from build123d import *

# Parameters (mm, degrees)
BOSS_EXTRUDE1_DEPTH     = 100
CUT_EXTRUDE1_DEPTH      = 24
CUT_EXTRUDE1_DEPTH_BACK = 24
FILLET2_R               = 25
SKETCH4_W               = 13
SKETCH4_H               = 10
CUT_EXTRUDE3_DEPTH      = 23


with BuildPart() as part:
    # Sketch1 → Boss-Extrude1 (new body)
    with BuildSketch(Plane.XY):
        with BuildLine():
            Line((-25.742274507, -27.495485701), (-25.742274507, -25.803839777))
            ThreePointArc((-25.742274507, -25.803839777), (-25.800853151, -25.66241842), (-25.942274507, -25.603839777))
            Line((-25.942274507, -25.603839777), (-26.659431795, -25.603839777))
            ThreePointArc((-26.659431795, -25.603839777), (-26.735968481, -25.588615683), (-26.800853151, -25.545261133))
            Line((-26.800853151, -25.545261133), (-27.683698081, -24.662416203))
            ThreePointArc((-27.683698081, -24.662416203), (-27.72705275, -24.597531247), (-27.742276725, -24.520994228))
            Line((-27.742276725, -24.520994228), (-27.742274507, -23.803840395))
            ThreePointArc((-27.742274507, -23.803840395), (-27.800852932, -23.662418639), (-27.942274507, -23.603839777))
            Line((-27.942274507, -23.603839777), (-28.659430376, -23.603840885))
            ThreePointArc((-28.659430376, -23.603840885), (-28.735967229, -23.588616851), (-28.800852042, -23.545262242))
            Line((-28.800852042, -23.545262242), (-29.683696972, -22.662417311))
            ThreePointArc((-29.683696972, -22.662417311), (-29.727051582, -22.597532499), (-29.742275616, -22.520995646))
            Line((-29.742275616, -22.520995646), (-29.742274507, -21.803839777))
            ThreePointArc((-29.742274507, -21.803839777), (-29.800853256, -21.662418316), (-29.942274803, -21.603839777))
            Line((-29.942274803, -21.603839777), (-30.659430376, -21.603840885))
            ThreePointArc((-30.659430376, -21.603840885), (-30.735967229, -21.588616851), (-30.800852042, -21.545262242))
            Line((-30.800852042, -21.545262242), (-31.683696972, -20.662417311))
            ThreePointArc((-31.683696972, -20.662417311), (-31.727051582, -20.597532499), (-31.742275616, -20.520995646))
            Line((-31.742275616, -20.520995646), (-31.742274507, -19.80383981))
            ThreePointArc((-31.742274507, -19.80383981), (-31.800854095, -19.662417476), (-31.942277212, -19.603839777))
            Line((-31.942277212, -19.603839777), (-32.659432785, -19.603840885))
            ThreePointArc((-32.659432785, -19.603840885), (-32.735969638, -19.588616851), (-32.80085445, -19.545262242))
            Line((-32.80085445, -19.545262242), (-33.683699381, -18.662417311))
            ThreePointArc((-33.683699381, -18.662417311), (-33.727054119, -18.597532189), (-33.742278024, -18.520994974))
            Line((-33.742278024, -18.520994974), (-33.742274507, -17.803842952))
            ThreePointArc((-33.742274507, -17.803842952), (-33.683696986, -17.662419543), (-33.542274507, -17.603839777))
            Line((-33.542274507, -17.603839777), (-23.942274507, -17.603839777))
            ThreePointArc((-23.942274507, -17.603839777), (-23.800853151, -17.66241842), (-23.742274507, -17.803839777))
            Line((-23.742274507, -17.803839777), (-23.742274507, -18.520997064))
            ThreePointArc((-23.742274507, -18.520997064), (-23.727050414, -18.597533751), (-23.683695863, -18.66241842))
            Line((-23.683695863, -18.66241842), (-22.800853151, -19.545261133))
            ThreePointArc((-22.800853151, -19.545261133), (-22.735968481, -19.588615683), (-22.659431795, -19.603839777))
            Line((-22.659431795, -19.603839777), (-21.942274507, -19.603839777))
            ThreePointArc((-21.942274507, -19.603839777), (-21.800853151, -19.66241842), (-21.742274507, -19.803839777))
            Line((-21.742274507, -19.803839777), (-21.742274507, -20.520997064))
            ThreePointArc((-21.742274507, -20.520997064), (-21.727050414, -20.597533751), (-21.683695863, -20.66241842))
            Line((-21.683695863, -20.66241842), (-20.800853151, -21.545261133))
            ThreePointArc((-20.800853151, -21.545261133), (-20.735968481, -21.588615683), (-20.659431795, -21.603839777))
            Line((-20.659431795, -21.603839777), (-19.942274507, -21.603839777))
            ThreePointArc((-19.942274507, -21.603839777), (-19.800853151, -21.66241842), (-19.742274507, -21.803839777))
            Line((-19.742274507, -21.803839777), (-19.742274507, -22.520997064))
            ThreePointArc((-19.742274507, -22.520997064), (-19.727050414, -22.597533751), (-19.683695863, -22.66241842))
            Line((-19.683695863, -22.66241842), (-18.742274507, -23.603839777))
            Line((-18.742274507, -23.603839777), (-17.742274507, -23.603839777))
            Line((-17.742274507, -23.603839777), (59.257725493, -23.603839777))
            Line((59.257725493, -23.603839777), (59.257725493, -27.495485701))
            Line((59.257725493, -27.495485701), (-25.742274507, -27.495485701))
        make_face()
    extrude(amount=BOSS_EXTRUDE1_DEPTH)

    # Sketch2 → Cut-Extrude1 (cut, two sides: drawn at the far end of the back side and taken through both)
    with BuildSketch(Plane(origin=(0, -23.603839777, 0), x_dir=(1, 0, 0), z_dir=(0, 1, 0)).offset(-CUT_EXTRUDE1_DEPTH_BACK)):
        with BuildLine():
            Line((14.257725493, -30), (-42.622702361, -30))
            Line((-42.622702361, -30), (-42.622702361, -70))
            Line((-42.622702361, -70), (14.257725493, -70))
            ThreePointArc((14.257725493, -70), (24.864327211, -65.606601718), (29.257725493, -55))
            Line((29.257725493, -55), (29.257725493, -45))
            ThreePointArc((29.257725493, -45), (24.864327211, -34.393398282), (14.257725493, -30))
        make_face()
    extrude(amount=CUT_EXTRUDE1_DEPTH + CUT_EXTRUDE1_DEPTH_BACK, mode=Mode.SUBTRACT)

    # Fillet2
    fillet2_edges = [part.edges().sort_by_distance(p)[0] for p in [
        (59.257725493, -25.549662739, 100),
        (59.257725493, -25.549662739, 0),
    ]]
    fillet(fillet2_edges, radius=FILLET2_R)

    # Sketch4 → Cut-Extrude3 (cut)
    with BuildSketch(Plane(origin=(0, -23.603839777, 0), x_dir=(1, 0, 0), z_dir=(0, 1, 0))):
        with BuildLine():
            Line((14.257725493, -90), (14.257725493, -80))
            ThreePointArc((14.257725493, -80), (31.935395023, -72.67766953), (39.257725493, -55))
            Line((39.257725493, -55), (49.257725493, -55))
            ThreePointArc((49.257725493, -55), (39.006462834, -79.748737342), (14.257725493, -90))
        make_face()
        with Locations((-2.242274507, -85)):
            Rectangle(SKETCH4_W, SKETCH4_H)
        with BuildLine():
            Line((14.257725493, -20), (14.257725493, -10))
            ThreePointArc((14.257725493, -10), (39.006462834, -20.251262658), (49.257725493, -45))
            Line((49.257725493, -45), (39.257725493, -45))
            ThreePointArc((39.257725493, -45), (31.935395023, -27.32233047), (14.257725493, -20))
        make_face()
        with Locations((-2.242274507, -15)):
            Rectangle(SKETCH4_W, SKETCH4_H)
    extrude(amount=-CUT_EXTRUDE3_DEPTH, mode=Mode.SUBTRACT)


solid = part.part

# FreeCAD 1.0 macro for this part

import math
import FreeCAD as App
import Part
import Sketcher

V = App.Vector
Q = App.Units.Quantity


def edges_at(feature, points):
    """Names of the edges that pass closest to the given points."""
    edges = feature.Shape.Edges
    near = lambda p: min(range(len(edges)), key=lambda i: edges[i].distToShape(Part.Vertex(*p))[0])
    return sorted({f"Edge{near(p) + 1}" for p in points})

doc = App.newDocument("Part")
body = doc.addObject("PartDesign::Body", "Body")

# Sketch on XY plane
sketch1 = body.newObject("Sketcher::SketchObject", "Sketch")
sketch1.AttachmentSupport = (doc.getObject("XY_Plane"), [""])
sketch1.MapMode = "FlatFace"
sketch1.addGeometry([
    Part.LineSegment(V(-25.74, -25.8, 0), V(-25.74, -27.5, 0)),  # 0
    Part.LineSegment(V(-25.74, -27.5, 0), V(59.26, -27.5, 0)),  # 1
    Part.LineSegment(V(59.26, -27.5, 0), V(59.26, -23.6, 0)),  # 2
    Part.LineSegment(V(59.26, -23.6, 0), V(-18.74, -23.6, 0)),  # 3
    Part.LineSegment(V(-18.74, -23.6, 0), V(-19.68, -22.66, 0)),  # 4
    Part.ArcOfCircle(Part.Circle(V(-19.54, -22.52, 0), V(0, 0, 1), 0.2), math.radians(180), math.radians(225)),  # 5
    Part.LineSegment(V(-19.74, -22.52, 0), V(-19.74, -21.8, 0)),  # 6
    Part.ArcOfCircle(Part.Circle(V(-19.94, -21.8, 0), V(0, 0, 1), 0.2), math.radians(0), math.radians(90)),  # 7
    Part.LineSegment(V(-19.94, -21.6, 0), V(-20.66, -21.6, 0)),  # 8
    Part.ArcOfCircle(Part.Circle(V(-20.66, -21.4, 0), V(0, 0, 1), 0.2), math.radians(-135), math.radians(-90)),  # 9
    Part.LineSegment(V(-20.8, -21.55, 0), V(-21.68, -20.66, 0)),  # 10
    Part.ArcOfCircle(Part.Circle(V(-21.54, -20.52, 0), V(0, 0, 1), 0.2), math.radians(180), math.radians(225)),  # 11
    Part.LineSegment(V(-21.74, -20.52, 0), V(-21.74, -19.8, 0)),  # 12
    Part.ArcOfCircle(Part.Circle(V(-21.94, -19.8, 0), V(0, 0, 1), 0.2), math.radians(0), math.radians(90)),  # 13
    Part.LineSegment(V(-21.94, -19.6, 0), V(-22.66, -19.6, 0)),  # 14
    Part.ArcOfCircle(Part.Circle(V(-22.66, -19.4, 0), V(0, 0, 1), 0.2), math.radians(-135), math.radians(-90)),  # 15
    Part.LineSegment(V(-22.8, -19.55, 0), V(-23.68, -18.66, 0)),  # 16
    Part.ArcOfCircle(Part.Circle(V(-23.54, -18.52, 0), V(0, 0, 1), 0.2), math.radians(180), math.radians(225)),  # 17
    Part.LineSegment(V(-23.74, -18.52, 0), V(-23.74, -17.8, 0)),  # 18
    Part.ArcOfCircle(Part.Circle(V(-23.94, -17.8, 0), V(0, 0, 1), 0.2), math.radians(0), math.radians(90)),  # 19
    Part.LineSegment(V(-23.94, -17.6, 0), V(-33.54, -17.6, 0)),  # 20
    Part.ArcOfCircle(Part.Circle(V(-33.54, -17.8, 0), V(0, 0, 1), 0.2), math.radians(90), math.radians(180)),  # 21
    Part.LineSegment(V(-33.74, -17.8, 0), V(-33.74, -18.52, 0)),  # 22
    Part.ArcOfCircle(Part.Circle(V(-33.54, -18.52, 0), V(0, 0, 1), 0.2), math.radians(180), math.radians(225)),  # 23
    Part.LineSegment(V(-33.68, -18.66, 0), V(-32.8, -19.55, 0)),  # 24
    Part.ArcOfCircle(Part.Circle(V(-32.66, -19.4, 0), V(0, 0, 1), 0.2), math.radians(-135), math.radians(-90)),  # 25
    Part.LineSegment(V(-32.66, -19.6, 0), V(-31.94, -19.6, 0)),  # 26
    Part.ArcOfCircle(Part.Circle(V(-31.94, -19.8, 0), V(0, 0, 1), 0.2), math.radians(0), math.radians(90)),  # 27
    Part.LineSegment(V(-31.74, -19.8, 0), V(-31.74, -20.52, 0)),  # 28
    Part.ArcOfCircle(Part.Circle(V(-31.54, -20.52, 0), V(0, 0, 1), 0.2), math.radians(180), math.radians(225)),  # 29
    Part.LineSegment(V(-31.68, -20.66, 0), V(-30.8, -21.55, 0)),  # 30
    Part.ArcOfCircle(Part.Circle(V(-30.66, -21.4, 0), V(0, 0, 1), 0.2), math.radians(-135), math.radians(-90)),  # 31
    Part.LineSegment(V(-30.66, -21.6, 0), V(-29.94, -21.6, 0)),  # 32
    Part.ArcOfCircle(Part.Circle(V(-29.94, -21.8, 0), V(0, 0, 1), 0.2), math.radians(0), math.radians(90)),  # 33
    Part.LineSegment(V(-29.74, -21.8, 0), V(-29.74, -22.52, 0)),  # 34
    Part.ArcOfCircle(Part.Circle(V(-29.54, -22.52, 0), V(0, 0, 1), 0.2), math.radians(180), math.radians(225)),  # 35
    Part.LineSegment(V(-29.68, -22.66, 0), V(-28.8, -23.55, 0)),  # 36
    Part.ArcOfCircle(Part.Circle(V(-28.66, -23.4, 0), V(0, 0, 1), 0.2), math.radians(-135), math.radians(-90)),  # 37
    Part.LineSegment(V(-28.66, -23.6, 0), V(-27.94, -23.6, 0)),  # 38
    Part.ArcOfCircle(Part.Circle(V(-27.94, -23.8, 0), V(0, 0, 1), 0.2), math.radians(0), math.radians(90)),  # 39
    Part.LineSegment(V(-27.74, -23.8, 0), V(-27.74, -24.52, 0)),  # 40
    Part.ArcOfCircle(Part.Circle(V(-27.54, -24.52, 0), V(0, 0, 1), 0.2), math.radians(180), math.radians(225)),  # 41
    Part.LineSegment(V(-27.68, -24.66, 0), V(-26.8, -25.55, 0)),  # 42
    Part.ArcOfCircle(Part.Circle(V(-26.66, -25.4, 0), V(0, 0, 1), 0.2), math.radians(-135), math.radians(-90)),  # 43
    Part.LineSegment(V(-26.66, -25.6, 0), V(-25.94, -25.6, 0)),  # 44
    Part.ArcOfCircle(Part.Circle(V(-25.94, -25.8, 0), V(0, 0, 1), 0.2), math.radians(0), math.radians(90)),  # 45
], False)
sketch1.addConstraint([
    Sketcher.Constraint("Coincident", 0, 2, 1, 1),
    Sketcher.Constraint("Coincident", 1, 2, 2, 1),
    Sketcher.Constraint("Coincident", 2, 2, 3, 1),
    Sketcher.Constraint("Coincident", 3, 2, 4, 1),
    Sketcher.Constraint("Tangent", 4, 2, 5, 2),
    Sketcher.Constraint("Tangent", 5, 1, 6, 1),
    Sketcher.Constraint("Tangent", 6, 2, 7, 1),
    Sketcher.Constraint("Tangent", 7, 2, 8, 1),
    Sketcher.Constraint("Tangent", 8, 2, 9, 2),
    Sketcher.Constraint("Tangent", 9, 1, 10, 1),
    Sketcher.Constraint("Tangent", 10, 2, 11, 2),
    Sketcher.Constraint("Tangent", 11, 1, 12, 1),
    Sketcher.Constraint("Tangent", 12, 2, 13, 1),
    Sketcher.Constraint("Tangent", 13, 2, 14, 1),
    Sketcher.Constraint("Tangent", 14, 2, 15, 2),
    Sketcher.Constraint("Tangent", 15, 1, 16, 1),
    Sketcher.Constraint("Tangent", 16, 2, 17, 2),
    Sketcher.Constraint("Tangent", 17, 1, 18, 1),
    Sketcher.Constraint("Tangent", 18, 2, 19, 1),
    Sketcher.Constraint("Tangent", 19, 2, 20, 1),
    Sketcher.Constraint("Tangent", 20, 2, 21, 1),
    Sketcher.Constraint("Coincident", 21, 2, 22, 1),
    Sketcher.Constraint("Tangent", 22, 2, 23, 1),
    Sketcher.Constraint("Tangent", 23, 2, 24, 1),
    Sketcher.Constraint("Tangent", 24, 2, 25, 1),
    Sketcher.Constraint("Tangent", 25, 2, 26, 1),
    Sketcher.Constraint("Coincident", 26, 2, 27, 2),
    Sketcher.Constraint("Tangent", 27, 1, 28, 1),
    Sketcher.Constraint("Tangent", 28, 2, 29, 1),
    Sketcher.Constraint("Tangent", 29, 2, 30, 1),
    Sketcher.Constraint("Tangent", 30, 2, 31, 1),
    Sketcher.Constraint("Tangent", 31, 2, 32, 1),
    Sketcher.Constraint("Tangent", 32, 2, 33, 2),
    Sketcher.Constraint("Tangent", 33, 1, 34, 1),
    Sketcher.Constraint("Tangent", 34, 2, 35, 1),
    Sketcher.Constraint("Tangent", 35, 2, 36, 1),
    Sketcher.Constraint("Tangent", 36, 2, 37, 1),
    Sketcher.Constraint("Tangent", 37, 2, 38, 1),
    Sketcher.Constraint("Tangent", 38, 2, 39, 2),
    Sketcher.Constraint("Tangent", 39, 1, 40, 1),
    Sketcher.Constraint("Tangent", 40, 2, 41, 1),
    Sketcher.Constraint("Tangent", 41, 2, 42, 1),
    Sketcher.Constraint("Tangent", 42, 2, 43, 1),
    Sketcher.Constraint("Tangent", 43, 2, 44, 1),
    Sketcher.Constraint("Tangent", 44, 2, 45, 2),
    Sketcher.Constraint("Tangent", 45, 1, 0, 1),
    Sketcher.Constraint("Vertical", 0),
    Sketcher.Constraint("Horizontal", 1),
    Sketcher.Constraint("Vertical", 2),
    Sketcher.Constraint("Horizontal", 3),
    Sketcher.Constraint("Vertical", 6),
    Sketcher.Constraint("Horizontal", 8),
    Sketcher.Constraint("Vertical", 12),
    Sketcher.Constraint("Horizontal", 14),
    Sketcher.Constraint("Vertical", 18),
    Sketcher.Constraint("Horizontal", 20),
    Sketcher.Constraint("Horizontal", 26),
    Sketcher.Constraint("Vertical", 28),
    Sketcher.Constraint("Horizontal", 32),
    Sketcher.Constraint("Vertical", 34),
    Sketcher.Constraint("Horizontal", 38),
    Sketcher.Constraint("Horizontal", 44),
    Sketcher.Constraint("Equal", 5, 7),
    Sketcher.Constraint("Equal", 7, 9),
    Sketcher.Constraint("Equal", 9, 11),
    Sketcher.Constraint("Equal", 11, 13),
    Sketcher.Constraint("Equal", 13, 15),
    Sketcher.Constraint("Equal", 15, 17),
    Sketcher.Constraint("Equal", 17, 19),
    Sketcher.Constraint("Equal", 19, 21),
    Sketcher.Constraint("Equal", 21, 23),
    Sketcher.Constraint("Equal", 23, 25),
    Sketcher.Constraint("Equal", 25, 27),
    Sketcher.Constraint("Equal", 27, 29),
    Sketcher.Constraint("Equal", 29, 31),
    Sketcher.Constraint("Equal", 31, 33),
    Sketcher.Constraint("Equal", 33, 35),
    Sketcher.Constraint("Equal", 35, 37),
    Sketcher.Constraint("Equal", 37, 39),
    Sketcher.Constraint("Equal", 39, 41),
    Sketcher.Constraint("Equal", 41, 43),
    Sketcher.Constraint("Equal", 43, 45),
    Sketcher.Constraint("Parallel", 4, 10),
    Sketcher.Constraint("Parallel", 10, 16),
    Sketcher.Constraint("Parallel", 16, 24),
    Sketcher.Constraint("Parallel", 24, 30),
    Sketcher.Constraint("Parallel", 30, 36),
    Sketcher.Constraint("Parallel", 22, 40),
    Sketcher.Constraint("Parallel", 36, 42),
    Sketcher.Constraint("Horizontal", 17, 3, 23, 3),
    Sketcher.Constraint("Horizontal", 15, 3, 25, 3),
    Sketcher.Constraint("Horizontal", 11, 3, 29, 3),
    Sketcher.Constraint("Horizontal", 9, 3, 31, 3),
    Sketcher.Constraint("Horizontal", 5, 3, 35, 3),
    Sketcher.Constraint("Horizontal", 23, 3, 22, 2),
    Sketcher.Constraint("Horizontal", 3, 2, 37, 2),
    Sketcher.Constraint("Equal", 8, 14),
    Sketcher.Constraint("Equal", 14, 26),
    Sketcher.Constraint("Equal", 26, 32),
    Sketcher.Constraint("Equal", 32, 38),
    Sketcher.Constraint("Equal", 38, 44),
    Sketcher.Constraint("Equal", 44, 6),
    Sketcher.Constraint("Equal", 6, 12),
    Sketcher.Constraint("Equal", 12, 18),
    Sketcher.Constraint("Equal", 10, 16),
    Sketcher.Constraint("Equal", 30, 36),
    Sketcher.Constraint("Equal", 22, 40),
    Sketcher.Constraint("Equal", 36, 42),
    Sketcher.Constraint("Radius", 5, 0.2),
    Sketcher.Constraint("DistanceX", 1, 1, 1, 2, 85.0),
    Sketcher.Constraint("DistanceX", 3, 2, 3, 1, 78.0),
    Sketcher.Constraint("Angle", 4, Q("135 deg")),
    Sketcher.Constraint("DistanceX", 20, 2, 20, 1, 9.6),
    Sketcher.Constraint("DistanceX", 23, 2, -1, 1, 33.683699),
    Sketcher.Constraint("DistanceX", 41, 2, -1, 1, 27.683698),
    Sketcher.Constraint("Distance", 4, 1.331371),
    Sketcher.Constraint("DistanceY", 0, 2, 0, 1, 1.691646),
    Sketcher.Constraint("DistanceY", 2, 1, 2, 2, 3.891646),
    Sketcher.Constraint("DistanceY", 7, 3, -1, 1, 21.80384),
])
pad1 = body.newObject("PartDesign::Pad", "Pad")
pad1.Profile = sketch1
pad1.Length = 100

# Sketch on XZ plane
sketch2 = body.newObject("Sketcher::SketchObject", "Sketch001")
sketch2.AttachmentSupport = (doc.getObject("XZ_Plane"), [""])
sketch2.MapMode = "FlatFace"
sketch2.AttachmentOffset = App.Placement(V(0, 0, 23.60384), App.Rotation())
sketch2.addGeometry([
    Part.LineSegment(V(14, 30, 0), V(-43, 30, 0)),  # 0
    Part.LineSegment(V(-43, 30, 0), V(-43, 70, 0)),  # 1
    Part.LineSegment(V(-43, 70, 0), V(14, 70, 0)),  # 2
    Part.ArcOfCircle(Part.Circle(V(14, 55, 0), V(0, 0, 1), 15), math.radians(0), math.radians(90)),  # 3
    Part.LineSegment(V(29, 55, 0), V(29, 45, 0)),  # 4
    Part.ArcOfCircle(Part.Circle(V(14, 45, 0), V(0, 0, 1), 15), math.radians(-90), math.radians(0)),  # 5
], False)
sketch2.addConstraint([
    Sketcher.Constraint("Coincident", 0, 2, 1, 1),
    Sketcher.Constraint("Coincident", 1, 2, 2, 1),
    Sketcher.Constraint("Tangent", 2, 2, 3, 2),
    Sketcher.Constraint("Tangent", 3, 1, 4, 1),
    Sketcher.Constraint("Tangent", 4, 2, 5, 2),
    Sketcher.Constraint("Tangent", 5, 1, 0, 1),
    Sketcher.Constraint("Horizontal", 0),
    Sketcher.Constraint("Vertical", 1),
    Sketcher.Constraint("Horizontal", 2),
    Sketcher.Constraint("Vertical", 4),
    Sketcher.Constraint("Equal", 3, 5),
    Sketcher.Constraint("Radius", 3, 15.0),
    Sketcher.Constraint("DistanceY", 1, 1, 1, 2, 40.0),
    Sketcher.Constraint("DistanceY", -1, 1, 3, 3, 55.0),
    Sketcher.Constraint("DistanceX", 0, 2, 0, 1, 56.880428),
    Sketcher.Constraint("DistanceX", -1, 1, 3, 3, 14.257725),
])
pocket1 = body.newObject("PartDesign::Pocket", "Pocket")
pocket1.Profile = sketch2
pocket1.Type = "ThroughAll"
pocket1.Midplane = True
doc.recompute()

fillet = body.newObject("PartDesign::Fillet", "Fillet")
fillet.Base = (pocket1, edges_at(pocket1, [(59.258, -25.55, 100), (59.258, -25.55, 0)]))
fillet.Radius = 25

# Sketch on XZ plane
sketch3 = body.newObject("Sketcher::SketchObject", "Sketch002")
sketch3.AttachmentSupport = (doc.getObject("XZ_Plane"), [""])
sketch3.MapMode = "FlatFace"
sketch3.AttachmentOffset = App.Placement(V(0, 0, 23.60384), App.Rotation())
sketch3.addGeometry([
    Part.LineSegment(V(14, 80, 0), V(14, 90, 0)),  # 0
    Part.ArcOfCircle(Part.Circle(V(14, 55, 0), V(0, 0, 1), 35), math.radians(0), math.radians(90)),  # 1
    Part.LineSegment(V(49, 55, 0), V(39, 55, 0)),  # 2
    Part.ArcOfCircle(Part.Circle(V(14, 55, 0), V(0, 0, 1), 25), math.radians(0), math.radians(90)),  # 3
    Part.LineSegment(V(-9, 80, 0), V(-9, 90, 0)),  # 4
    Part.LineSegment(V(-9, 90, 0), V(4, 90, 0)),  # 5
    Part.LineSegment(V(4, 90, 0), V(4, 80, 0)),  # 6
    Part.LineSegment(V(4, 80, 0), V(-9, 80, 0)),  # 7
    Part.LineSegment(V(14, 10, 0), V(14, 20, 0)),  # 8
    Part.ArcOfCircle(Part.Circle(V(14, 45, 0), V(0, 0, 1), 25), math.radians(-90), math.radians(0)),  # 9
    Part.LineSegment(V(39, 45, 0), V(49, 45, 0)),  # 10
    Part.ArcOfCircle(Part.Circle(V(14, 45, 0), V(0, 0, 1), 35), math.radians(-90), math.radians(0)),  # 11
    Part.LineSegment(V(-9, 10, 0), V(-9, 20, 0)),  # 12
    Part.LineSegment(V(-9, 20, 0), V(4, 20, 0)),  # 13
    Part.LineSegment(V(4, 20, 0), V(4, 10, 0)),  # 14
    Part.LineSegment(V(4, 10, 0), V(-9, 10, 0)),  # 15
], False)
sketch3.addConstraint([
    Sketcher.Constraint("Coincident", 0, 2, 1, 2),
    Sketcher.Constraint("Coincident", 1, 1, 2, 1),
    Sketcher.Constraint("Coincident", 2, 2, 3, 1),
    Sketcher.Constraint("Coincident", 3, 2, 0, 1),
    Sketcher.Constraint("Coincident", 4, 2, 5, 1),
    Sketcher.Constraint("Coincident", 5, 2, 6, 1),
    Sketcher.Constraint("Coincident", 6, 2, 7, 1),
    Sketcher.Constraint("Coincident", 7, 2, 4, 1),
    Sketcher.Constraint("Coincident", 8, 2, 9, 1),
    Sketcher.Constraint("Coincident", 9, 2, 10, 1),
    Sketcher.Constraint("Coincident", 10, 2, 11, 2),
    Sketcher.Constraint("Coincident", 11, 1, 8, 1),
    Sketcher.Constraint("Coincident", 12, 2, 13, 1),
    Sketcher.Constraint("Coincident", 13, 2, 14, 1),
    Sketcher.Constraint("Coincident", 14, 2, 15, 1),
    Sketcher.Constraint("Coincident", 15, 2, 12, 1),
    Sketcher.Constraint("Vertical", 0),
    Sketcher.Constraint("Horizontal", 2),
    Sketcher.Constraint("Vertical", 4),
    Sketcher.Constraint("Horizontal", 5),
    Sketcher.Constraint("Vertical", 6),
    Sketcher.Constraint("Horizontal", 7),
    Sketcher.Constraint("Vertical", 8),
    Sketcher.Constraint("Horizontal", 10),
    Sketcher.Constraint("Vertical", 12),
    Sketcher.Constraint("Horizontal", 13),
    Sketcher.Constraint("Vertical", 14),
    Sketcher.Constraint("Horizontal", 15),
    Sketcher.Constraint("Coincident", 3, 3, 1, 3),
    Sketcher.Constraint("Coincident", 11, 3, 9, 3),
    Sketcher.Constraint("Equal", 3, 9),
    Sketcher.Constraint("Equal", 1, 11),
    Sketcher.Constraint("Horizontal", 3, 3, 1, 1),
    Sketcher.Constraint("Horizontal", 0, 2, 4, 2),
    Sketcher.Constraint("Horizontal", 3, 2, 6, 2),
    Sketcher.Constraint("Horizontal", 11, 3, 9, 2),
    Sketcher.Constraint("Horizontal", 8, 2, 12, 2),
    Sketcher.Constraint("Horizontal", 11, 1, 14, 2),
    Sketcher.Constraint("Vertical", 3, 3, 9, 3),
    Sketcher.Constraint("Vertical", 11, 3, 0, 2),
    Sketcher.Constraint("Vertical", 3, 2, 8, 2),
    Sketcher.Constraint("Vertical", 7, 2, 12, 2),
    Sketcher.Constraint("Vertical", 6, 2, 13, 2),
    Sketcher.Constraint("Radius", 1, 35.0),
    Sketcher.Constraint("Radius", 3, 25.0),
    Sketcher.Constraint("DistanceX", 5, 1, 5, 2, 13.0),
    Sketcher.Constraint("DistanceY", -1, 1, 1, 3, 55.0),
    Sketcher.Constraint("DistanceY", -1, 1, 9, 3, 45.0),
    Sketcher.Constraint("DistanceX", 4, 2, 0, 2, 23.0),
    Sketcher.Constraint("DistanceX", -1, 1, 1, 3, 14.257725),
])
pocket2 = body.newObject("PartDesign::Pocket", "Pocket001")
pocket2.Profile = sketch3
pocket2.Length = 23
pocket2.Reversed = True

doc.recompute()
